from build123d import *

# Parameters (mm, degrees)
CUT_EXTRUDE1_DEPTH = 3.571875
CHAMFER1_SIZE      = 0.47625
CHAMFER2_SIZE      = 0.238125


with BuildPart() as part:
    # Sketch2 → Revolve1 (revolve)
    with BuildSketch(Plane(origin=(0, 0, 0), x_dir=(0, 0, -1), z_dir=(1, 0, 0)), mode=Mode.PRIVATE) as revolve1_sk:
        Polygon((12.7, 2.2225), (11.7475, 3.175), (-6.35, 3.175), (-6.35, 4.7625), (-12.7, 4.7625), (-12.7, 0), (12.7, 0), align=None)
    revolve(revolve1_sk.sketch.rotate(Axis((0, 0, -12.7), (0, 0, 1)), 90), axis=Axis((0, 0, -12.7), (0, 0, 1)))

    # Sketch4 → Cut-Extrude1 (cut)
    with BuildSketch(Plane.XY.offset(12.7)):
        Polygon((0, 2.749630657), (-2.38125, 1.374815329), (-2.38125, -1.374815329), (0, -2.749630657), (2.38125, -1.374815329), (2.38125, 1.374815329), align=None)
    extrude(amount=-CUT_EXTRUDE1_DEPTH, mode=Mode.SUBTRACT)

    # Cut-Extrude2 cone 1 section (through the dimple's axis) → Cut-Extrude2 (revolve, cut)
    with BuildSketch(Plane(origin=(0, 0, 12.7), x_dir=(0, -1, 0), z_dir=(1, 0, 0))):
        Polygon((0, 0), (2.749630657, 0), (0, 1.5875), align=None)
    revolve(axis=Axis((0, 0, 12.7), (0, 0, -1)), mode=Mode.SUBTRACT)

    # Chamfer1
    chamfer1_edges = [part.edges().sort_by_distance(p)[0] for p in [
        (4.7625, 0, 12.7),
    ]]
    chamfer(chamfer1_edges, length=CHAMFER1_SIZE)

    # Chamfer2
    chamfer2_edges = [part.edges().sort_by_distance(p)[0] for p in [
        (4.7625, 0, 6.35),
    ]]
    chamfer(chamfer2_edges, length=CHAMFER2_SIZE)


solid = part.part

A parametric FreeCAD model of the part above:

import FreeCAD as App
import Part
import Sketcher
from FreeCAD import Vector
Q = App.Units.Quantity


def edges_at(feature, points):
    """Names of the edges that pass closest to the given points."""
    edges = feature.Shape.Edges
    near = lambda p: min(range(len(edges)), key=lambda i: edges[i].distToShape(Part.Vertex(*p))[0])
    return sorted({f"Edge{near(p) + 1}" for p in points})


def add_polygon(sketch, points):
    """Adds a closed chain of lines whose ends are joined by coincident constraints."""
    first, n = sketch.GeometryCount, len(points)
    for a, b in zip(points, points[1:] + points[:1]):
        sketch.addGeometry(Part.LineSegment(App.Vector(*a, 0), App.Vector(*b, 0)), False)
    for i in range(n):
        sketch.addConstraint(Sketcher.Constraint("Coincident", first + i, 2, first + (i + 1) % n, 1))

doc = App.newDocument("Part")
body = doc.addObject("PartDesign::Body", "Body")

sketch1 = body.newObject("Sketcher::SketchObject", "Sketch")
sketch1.AttachmentSupport = (doc.getObject("YZ_Plane"), [""])
sketch1.MapMode = "FlatFace"
add_polygon(sketch1, [(2.2, -12.7), (3.2, -11.7), (3.2, 6.3), (4.8, 6.3), (4.8, 12.7), (0, 12.7), (0, -12.7)])
sketch1.addConstraint([
    Sketcher.Constraint("Vertical", 1),
    Sketcher.Constraint("Horizontal", 2),
    Sketcher.Constraint("Vertical", 3),
    Sketcher.Constraint("Horizontal", 4),
    Sketcher.Constraint("Vertical", 5),
    Sketcher.Constraint("Horizontal", 6),
    Sketcher.Constraint("Symmetric", 4, 2, 5, 2, -1, 1),
    Sketcher.Constraint("DistanceY", 5, 2, 5, 1, Q("1 in")),
    Sketcher.Constraint("Angle", 0, Q("45 deg")),
    Sketcher.Constraint("DistanceY", 3, 1, 3, 2, Q("0.25 in")),
    Sketcher.Constraint("DistanceX", 6, 2, 2, 2, Q("0.1 in")),
    Sketcher.Constraint("DistanceX", 2, 1, 2, 2, Q("0.0625 in")),
    Sketcher.Constraint("DistanceX", 4, 2, 4, 1, Q("0.1875 in")),
])
revolution = body.newObject("PartDesign::Revolution", "Revolution")
revolution.Profile = sketch1
revolution.ReferenceAxis = (sketch1, ["V_Axis"])
revolution.Angle = 360

sketch2 = body.newObject("Sketcher::SketchObject", "Sketch001")
sketch2.AttachmentSupport = (doc.getObject("XY_Plane"), [""])
sketch2.MapMode = "FlatFace"
sketch2.AttachmentOffset = App.Placement(Vector(0, 0, 0.5 * 25.4), App.Rotation())
add_polygon(sketch2, [(0, 2.7), (-2.4, 1.4), (-2.4, -1.4), (0, -2.7), (2.4, -1.4), (2.4, 1.4)])
sketch2.addConstraint([
    Sketcher.Constraint("Vertical", 1),
    Sketcher.Constraint("Vertical", 4),
    Sketcher.Constraint("Symmetric", 0, 2, 3, 2, -1, 1),
    Sketcher.Constraint("Symmetric", 2, 2, 5, 2, -1, 1),
    Sketcher.Constraint("PointOnObject", 2, 2, -2),
    Sketcher.Constraint("Parallel", 2, 5),
    Sketcher.Constraint("Horizontal", 1, 2, 3, 2),
    Sketcher.Constraint("Angle", 0, Q("-150 deg")),
    Sketcher.Constraint("DistanceX", 0, 2, -1, 1, Q("0.09375 in")),
    Sketcher.Constraint("DistanceY", 1, 2, 1, 1, Q("2.749631 mm")),
])
pocket1 = body.newObject("PartDesign::Pocket", "Pocket")
pocket1.Profile = sketch2
pocket1.Length = Q("0.140625 in")

sketch3 = body.newObject("Sketcher::SketchObject", "Sketch002")
sketch3.AttachmentSupport = (doc.getObject("YZ_Plane"), [""])
sketch3.MapMode = "FlatFace"
add_polygon(sketch3, [(0, 12.7), (-2.7, 12.7), (0, 11.1)])
sketch3.addConstraint([
    Sketcher.Constraint("Horizontal", 0),
    Sketcher.Constraint("Vertical", 2),
    Sketcher.Constraint("PointOnObject", 1, 2, -2),
    Sketcher.Constraint("Angle", 1, Q("-30 deg")),
    Sketcher.Constraint("DistanceY", -1, 1, 0, 2, Q("0.5 in")),
    Sketcher.Constraint("DistanceY", 2, 1, 2, 2, Q("0.0625 in")),
])
groove = body.newObject("PartDesign::Groove", "Groove")
groove.Profile = sketch3
groove.ReferenceAxis = (sketch3, ["V_Axis"])
groove.Angle = 360
doc.recompute()

chamfer = body.newObject("PartDesign::Chamfer", "Chamfer")
chamfer.Base = (groove, edges_at(groove, [(4.763, 0, 12.7)]))
chamfer.Size = 0.47625
doc.recompute()

chamfer2 = body.newObject("PartDesign::Chamfer", "Chamfer001")
chamfer2.Base = (chamfer, edges_at(chamfer, [(4.763, 0, 6.35)]))
chamfer2.Size = 0.238125

doc.recompute()
